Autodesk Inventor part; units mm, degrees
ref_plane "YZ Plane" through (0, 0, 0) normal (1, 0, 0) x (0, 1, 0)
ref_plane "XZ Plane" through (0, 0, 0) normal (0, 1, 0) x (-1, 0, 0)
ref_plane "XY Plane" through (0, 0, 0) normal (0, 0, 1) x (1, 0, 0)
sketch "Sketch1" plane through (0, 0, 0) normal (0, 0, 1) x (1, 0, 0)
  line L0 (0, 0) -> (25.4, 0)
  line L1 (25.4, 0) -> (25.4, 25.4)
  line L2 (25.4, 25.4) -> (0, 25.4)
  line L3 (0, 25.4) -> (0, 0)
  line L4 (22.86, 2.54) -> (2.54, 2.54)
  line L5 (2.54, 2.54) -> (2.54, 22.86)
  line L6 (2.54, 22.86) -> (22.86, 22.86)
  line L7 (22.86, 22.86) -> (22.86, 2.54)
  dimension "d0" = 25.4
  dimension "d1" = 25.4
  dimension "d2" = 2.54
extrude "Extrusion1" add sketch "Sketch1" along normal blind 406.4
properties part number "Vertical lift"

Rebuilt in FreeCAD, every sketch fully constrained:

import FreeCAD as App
import Part
import Sketcher
from FreeCAD import Vector
Q = App.Units.Quantity

doc = App.newDocument("Part")
body = doc.addObject("PartDesign::Body", "Body")

sketch1 = doc.addObject("Sketcher::SketchObject", "Sketch")
body.addObject(sketch1)
sketch1.AttachmentSupport = (doc.XY_Plane, [""])
sketch1.MapMode = "FlatFace"
sketch1.addGeometry([
    Part.LineSegment(Vector(0, 25, 0), Vector(0, 0, 0)),
    Part.LineSegment(Vector(0, 0, 0), Vector(25, 0, 0)),
    Part.LineSegment(Vector(25, 0, 0), Vector(25, 25, 0)),
    Part.LineSegment(Vector(25, 25, 0), Vector(0, 25, 0)),
    Part.LineSegment(Vector(23, 23, 0), Vector(23, 3, 0)),
    Part.LineSegment(Vector(23, 3, 0), Vector(3, 3, 0)),
    Part.LineSegment(Vector(3, 3, 0), Vector(3, 23, 0)),
    Part.LineSegment(Vector(3, 23, 0), Vector(23, 23, 0)),
], False)
sketch1.addConstraint([
    Sketcher.Constraint("Coincident", 0, 2, 1, 1),
    Sketcher.Constraint("Coincident", 1, 2, 2, 1),
    Sketcher.Constraint("Coincident", 2, 2, 3, 1),
    Sketcher.Constraint("Coincident", 3, 2, 0, 1),
    Sketcher.Constraint("Coincident", 4, 2, 5, 1),
    Sketcher.Constraint("Coincident", 5, 2, 6, 1),
    Sketcher.Constraint("Coincident", 6, 2, 7, 1),
    Sketcher.Constraint("Coincident", 7, 2, 4, 1),
    Sketcher.Constraint("Vertical", 0),
    Sketcher.Constraint("Horizontal", 1),
    Sketcher.Constraint("Vertical", 2),
    Sketcher.Constraint("Horizontal", 3),
    Sketcher.Constraint("Vertical", 4),
    Sketcher.Constraint("Horizontal", 5),
    Sketcher.Constraint("Vertical", 6),
    Sketcher.Constraint("Horizontal", 7),
    Sketcher.Constraint("Coincident", 0, 2, -1, 1),
    Sketcher.Constraint("Equal", 3, 0),
    Sketcher.Constraint("Equal", 7, 4),
    Sketcher.Constraint("DistanceX", 1, 1, 1, 2, Q("1 in")),
    Sketcher.Constraint("DistanceY", -1, 1, 4, 2, Q("0.1 in")),
    Sketcher.Constraint("DistanceX", -1, 1, 5, 2, Q("0.1 in")),
    Sketcher.Constraint("DistanceX", 4, 2, 1, 2, Q("0.1 in")),
])
pad1 = doc.addObject("PartDesign::Pad", "Pad")
body.addObject(pad1)
pad1.Profile = sketch1
pad1.Length = Q("16 in")

doc.recompute()
